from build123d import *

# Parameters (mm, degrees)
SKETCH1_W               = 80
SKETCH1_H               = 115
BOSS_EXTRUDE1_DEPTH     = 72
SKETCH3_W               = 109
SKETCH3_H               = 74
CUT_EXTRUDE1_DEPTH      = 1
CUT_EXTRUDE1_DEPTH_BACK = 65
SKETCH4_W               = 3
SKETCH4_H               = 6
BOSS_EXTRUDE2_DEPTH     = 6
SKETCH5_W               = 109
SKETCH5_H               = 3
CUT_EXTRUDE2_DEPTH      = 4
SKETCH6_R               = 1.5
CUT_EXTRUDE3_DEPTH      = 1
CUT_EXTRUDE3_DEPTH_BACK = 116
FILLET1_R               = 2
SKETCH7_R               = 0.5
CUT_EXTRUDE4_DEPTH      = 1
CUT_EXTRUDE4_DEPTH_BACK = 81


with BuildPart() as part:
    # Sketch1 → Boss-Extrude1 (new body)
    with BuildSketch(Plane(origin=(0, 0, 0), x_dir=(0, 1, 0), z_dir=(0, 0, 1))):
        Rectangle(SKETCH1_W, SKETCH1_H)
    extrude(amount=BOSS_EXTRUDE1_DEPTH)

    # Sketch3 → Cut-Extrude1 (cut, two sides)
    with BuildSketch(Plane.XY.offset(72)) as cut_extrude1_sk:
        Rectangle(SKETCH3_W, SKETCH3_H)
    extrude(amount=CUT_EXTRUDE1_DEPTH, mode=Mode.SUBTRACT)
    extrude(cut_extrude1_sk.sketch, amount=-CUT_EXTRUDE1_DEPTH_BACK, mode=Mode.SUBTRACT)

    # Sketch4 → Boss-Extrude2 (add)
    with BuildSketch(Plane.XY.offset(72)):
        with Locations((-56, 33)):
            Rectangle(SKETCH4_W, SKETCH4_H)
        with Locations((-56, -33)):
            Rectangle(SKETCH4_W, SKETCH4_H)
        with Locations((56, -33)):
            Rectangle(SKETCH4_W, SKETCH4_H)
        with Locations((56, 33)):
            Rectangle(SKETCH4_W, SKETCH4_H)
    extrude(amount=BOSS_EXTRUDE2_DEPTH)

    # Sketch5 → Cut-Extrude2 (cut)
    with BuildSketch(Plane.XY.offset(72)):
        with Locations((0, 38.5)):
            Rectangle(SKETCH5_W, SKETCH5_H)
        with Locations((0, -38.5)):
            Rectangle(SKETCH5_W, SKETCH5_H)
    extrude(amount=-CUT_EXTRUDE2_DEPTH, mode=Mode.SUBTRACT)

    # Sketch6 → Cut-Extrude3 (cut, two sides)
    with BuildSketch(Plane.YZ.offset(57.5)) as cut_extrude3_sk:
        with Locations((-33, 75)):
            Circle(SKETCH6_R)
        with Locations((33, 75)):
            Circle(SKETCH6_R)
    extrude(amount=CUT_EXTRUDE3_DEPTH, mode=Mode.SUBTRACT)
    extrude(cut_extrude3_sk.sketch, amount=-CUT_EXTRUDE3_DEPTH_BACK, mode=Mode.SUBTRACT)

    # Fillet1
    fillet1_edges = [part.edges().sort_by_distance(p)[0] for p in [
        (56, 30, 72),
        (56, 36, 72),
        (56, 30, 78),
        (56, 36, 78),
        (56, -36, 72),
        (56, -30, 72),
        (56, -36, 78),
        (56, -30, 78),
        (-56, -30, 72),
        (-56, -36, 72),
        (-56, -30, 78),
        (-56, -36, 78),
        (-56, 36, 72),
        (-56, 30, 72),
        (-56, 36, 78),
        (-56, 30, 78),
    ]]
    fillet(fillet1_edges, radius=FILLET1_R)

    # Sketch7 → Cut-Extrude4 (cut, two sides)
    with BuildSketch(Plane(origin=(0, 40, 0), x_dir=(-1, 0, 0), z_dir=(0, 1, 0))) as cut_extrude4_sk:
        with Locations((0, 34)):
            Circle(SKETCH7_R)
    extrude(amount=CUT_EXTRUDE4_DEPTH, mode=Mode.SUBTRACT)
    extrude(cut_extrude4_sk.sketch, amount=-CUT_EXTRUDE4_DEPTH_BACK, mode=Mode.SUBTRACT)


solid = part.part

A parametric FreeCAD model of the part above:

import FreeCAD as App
import Part
import Sketcher


def edges_at(feature, points):
    """Names of the edges that pass closest to the given points."""
    edges = feature.Shape.Edges
    near = lambda p: min(range(len(edges)), key=lambda i: edges[i].distToShape(Part.Vertex(*p))[0])
    return sorted({f"Edge{near(p) + 1}" for p in points})

doc = App.newDocument("Part")
body = doc.addObject("PartDesign::Body", "Body")

sketch1 = body.newObject("Sketcher::SketchObject", "Sketch")
sketch1.AttachmentSupport = (doc.getObject("XY_Plane"), [""])
sketch1.MapMode = "FlatFace"
sketch1.addGeometry(Part.LineSegment(App.Vector(-58, -40, 0), App.Vector(58, -40, 0)), False)
sketch1.addGeometry(Part.LineSegment(App.Vector(58, -40, 0), App.Vector(58, 40, 0)), False)
sketch1.addGeometry(Part.LineSegment(App.Vector(58, 40, 0), App.Vector(-58, 40, 0)), False)
sketch1.addGeometry(Part.LineSegment(App.Vector(-58, 40, 0), App.Vector(-58, -40, 0)), False)
sketch1.addConstraint(Sketcher.Constraint("Coincident", 0, 2, 1, 1))
sketch1.addConstraint(Sketcher.Constraint("Coincident", 1, 2, 2, 1))
sketch1.addConstraint(Sketcher.Constraint("Coincident", 2, 2, 3, 1))
sketch1.addConstraint(Sketcher.Constraint("Coincident", 3, 2, 0, 1))
sketch1.addConstraint(Sketcher.Constraint("Horizontal", 0))
sketch1.addConstraint(Sketcher.Constraint("Vertical", 1))
sketch1.addConstraint(Sketcher.Constraint("Horizontal", 2))
sketch1.addConstraint(Sketcher.Constraint("Vertical", 3))
sketch1.addConstraint(Sketcher.Constraint("Symmetric", 0, 2, 2, 2, -1, 1))
sketch1.addConstraint(Sketcher.Constraint("DistanceX", 0, 1, 0, 2, 115.0))
sketch1.addConstraint(Sketcher.Constraint("DistanceY", 1, 1, 1, 2, 80.0))
pad1 = body.newObject("PartDesign::Pad", "Pad")
pad1.Profile = sketch1
pad1.Length = 72

sketch2 = body.newObject("Sketcher::SketchObject", "Sketch001")
sketch2.AttachmentSupport = (doc.getObject("XY_Plane"), [""])
sketch2.MapMode = "FlatFace"
sketch2.AttachmentOffset = App.Placement(App.Vector(0, 0, 72), App.Rotation())
sketch2.addGeometry(Part.LineSegment(App.Vector(-54, 37, 0), App.Vector(-54, -37, 0)), False)
sketch2.addGeometry(Part.LineSegment(App.Vector(-54, -37, 0), App.Vector(54, -37, 0)), False)
sketch2.addGeometry(Part.LineSegment(App.Vector(54, -37, 0), App.Vector(54, 37, 0)), False)
sketch2.addGeometry(Part.LineSegment(App.Vector(54, 37, 0), App.Vector(-54, 37, 0)), False)
sketch2.addConstraint(Sketcher.Constraint("Coincident", 0, 2, 1, 1))
sketch2.addConstraint(Sketcher.Constraint("Coincident", 1, 2, 2, 1))
sketch2.addConstraint(Sketcher.Constraint("Coincident", 2, 2, 3, 1))
sketch2.addConstraint(Sketcher.Constraint("Coincident", 3, 2, 0, 1))
sketch2.addConstraint(Sketcher.Constraint("Vertical", 0))
sketch2.addConstraint(Sketcher.Constraint("Horizontal", 1))
sketch2.addConstraint(Sketcher.Constraint("Vertical", 2))
sketch2.addConstraint(Sketcher.Constraint("Horizontal", 3))
sketch2.addConstraint(Sketcher.Constraint("Symmetric", 0, 2, 2, 2, -1, 1))
sketch2.addConstraint(Sketcher.Constraint("DistanceX", 1, 1, 1, 2, 109.0))
sketch2.addConstraint(Sketcher.Constraint("DistanceY", 0, 2, 0, 1, 74.0))
pocket1 = body.newObject("PartDesign::Pocket", "Pocket")
pocket1.Profile = sketch2
pocket1.Type = "TwoLengths"
pocket1.Length = 1
pocket1.Length2 = 65
pocket1.Reversed = True

sketch3 = body.newObject("Sketcher::SketchObject", "Sketch002")
sketch3.AttachmentSupport = (doc.getObject("XY_Plane"), [""])
sketch3.MapMode = "FlatFace"
sketch3.AttachmentOffset = App.Placement(App.Vector(0, 0, 72), App.Rotation())
sketch3.addGeometry(Part.LineSegment(App.Vector(-57.5, 36, 0), App.Vector(-57.5, 30, 0)), False)
sketch3.addGeometry(Part.LineSegment(App.Vector(-57.5, 30, 0), App.Vector(-54.5, 30, 0)), False)
sketch3.addGeometry(Part.LineSegment(App.Vector(-54.5, 30, 0), App.Vector(-54.5, 36, 0)), False)
sketch3.addGeometry(Part.LineSegment(App.Vector(-54.5, 36, 0), App.Vector(-57.5, 36, 0)), False)
sketch3.addGeometry(Part.LineSegment(App.Vector(-57.5, -30, 0), App.Vector(-57.5, -36, 0)), False)
sketch3.addGeometry(Part.LineSegment(App.Vector(-57.5, -36, 0), App.Vector(-54.5, -36, 0)), False)
sketch3.addGeometry(Part.LineSegment(App.Vector(-54.5, -36, 0), App.Vector(-54.5, -30, 0)), False)
sketch3.addGeometry(Part.LineSegment(App.Vector(-54.5, -30, 0), App.Vector(-57.5, -30, 0)), False)
sketch3.addGeometry(Part.LineSegment(App.Vector(54.5, -30, 0), App.Vector(54.5, -36, 0)), False)
sketch3.addGeometry(Part.LineSegment(App.Vector(54.5, -36, 0), App.Vector(57.5, -36, 0)), False)
sketch3.addGeometry(Part.LineSegment(App.Vector(57.5, -36, 0), App.Vector(57.5, -30, 0)), False)
sketch3.addGeometry(Part.LineSegment(App.Vector(57.5, -30, 0), App.Vector(54.5, -30, 0)), False)
sketch3.addGeometry(Part.LineSegment(App.Vector(54.5, 36, 0), App.Vector(54.5, 30, 0)), False)
sketch3.addGeometry(Part.LineSegment(App.Vector(54.5, 30, 0), App.Vector(57.5, 30, 0)), False)
sketch3.addGeometry(Part.LineSegment(App.Vector(57.5, 30, 0), App.Vector(57.5, 36, 0)), False)
sketch3.addGeometry(Part.LineSegment(App.Vector(57.5, 36, 0), App.Vector(54.5, 36, 0)), False)
sketch3.addConstraint(Sketcher.Constraint("Coincident", 0, 2, 1, 1))
sketch3.addConstraint(Sketcher.Constraint("Coincident", 1, 2, 2, 1))
sketch3.addConstraint(Sketcher.Constraint("Coincident", 2, 2, 3, 1))
sketch3.addConstraint(Sketcher.Constraint("Coincident", 3, 2, 0, 1))
sketch3.addConstraint(Sketcher.Constraint("Coincident", 4, 2, 5, 1))
sketch3.addConstraint(Sketcher.Constraint("Coincident", 5, 2, 6, 1))
sketch3.addConstraint(Sketcher.Constraint("Coincident", 6, 2, 7, 1))
sketch3.addConstraint(Sketcher.Constraint("Coincident", 7, 2, 4, 1))
sketch3.addConstraint(Sketcher.Constraint("Coincident", 8, 2, 9, 1))
sketch3.addConstraint(Sketcher.Constraint("Coincident", 9, 2, 10, 1))
sketch3.addConstraint(Sketcher.Constraint("Coincident", 10, 2, 11, 1))
sketch3.addConstraint(Sketcher.Constraint("Coincident", 11, 2, 8, 1))
sketch3.addConstraint(Sketcher.Constraint("Coincident", 12, 2, 13, 1))
sketch3.addConstraint(Sketcher.Constraint("Coincident", 13, 2, 14, 1))
sketch3.addConstraint(Sketcher.Constraint("Coincident", 14, 2, 15, 1))
sketch3.addConstraint(Sketcher.Constraint("Coincident", 15, 2, 12, 1))
sketch3.addConstraint(Sketcher.Constraint("Vertical", 0))
sketch3.addConstraint(Sketcher.Constraint("Horizontal", 1))
sketch3.addConstraint(Sketcher.Constraint("Vertical", 2))
sketch3.addConstraint(Sketcher.Constraint("Horizontal", 3))
sketch3.addConstraint(Sketcher.Constraint("Vertical", 4))
sketch3.addConstraint(Sketcher.Constraint("Horizontal", 5))
sketch3.addConstraint(Sketcher.Constraint("Vertical", 6))
sketch3.addConstraint(Sketcher.Constraint("Horizontal", 7))
sketch3.addConstraint(Sketcher.Constraint("Vertical", 8))
sketch3.addConstraint(Sketcher.Constraint("Horizontal", 9))
sketch3.addConstraint(Sketcher.Constraint("Vertical", 10))
sketch3.addConstraint(Sketcher.Constraint("Horizontal", 11))
sketch3.addConstraint(Sketcher.Constraint("Vertical", 12))
sketch3.addConstraint(Sketcher.Constraint("Horizontal", 13))
sketch3.addConstraint(Sketcher.Constraint("Vertical", 14))
sketch3.addConstraint(Sketcher.Constraint("Horizontal", 15))
sketch3.addConstraint(Sketcher.Constraint("Symmetric", 2, 2, 8, 2, -1, 1))
sketch3.addConstraint(Sketcher.Constraint("Symmetric", 0, 2, 10, 2, -1, 1))
sketch3.addConstraint(Sketcher.Constraint("Symmetric", 6, 2, 12, 2, -1, 1))
sketch3.addConstraint(Sketcher.Constraint("Symmetric", 4, 2, 14, 2, -1, 1))
sketch3.addConstraint(Sketcher.Constraint("Symmetric", 5, 2, 8, 2, -2))
sketch3.addConstraint(Sketcher.Constraint("Symmetric", 7, 2, 10, 2, -2))
sketch3.addConstraint(Sketcher.Constraint("DistanceX", 1, 1, 1, 2, 3.0))
sketch3.addConstraint(Sketcher.Constraint("DistanceY", 0, 2, 0, 1, 6.0))
sketch3.addConstraint(Sketcher.Constraint("DistanceY", -1, 1, 0, 2, 30.0))
sketch3.addConstraint(Sketcher.Constraint("DistanceX", 5, 2, 8, 2, 109.0))
pad2 = body.newObject("PartDesign::Pad", "Pad001")
pad2.Profile = sketch3
pad2.Length = 6

sketch4 = body.newObject("Sketcher::SketchObject", "Sketch003")
sketch4.AttachmentSupport = (doc.getObject("XY_Plane"), [""])
sketch4.MapMode = "FlatFace"
sketch4.AttachmentOffset = App.Placement(App.Vector(0, 0, 72), App.Rotation())
sketch4.addGeometry(Part.LineSegment(App.Vector(-54.5, 40, 0), App.Vector(-54.5, 37, 0)), False)
sketch4.addGeometry(Part.LineSegment(App.Vector(-54.5, 37, 0), App.Vector(54.5, 37, 0)), False)
sketch4.addGeometry(Part.LineSegment(App.Vector(54.5, 37, 0), App.Vector(54.5, 40, 0)), False)
sketch4.addGeometry(Part.LineSegment(App.Vector(54.5, 40, 0), App.Vector(-54.5, 40, 0)), False)
sketch4.addGeometry(Part.LineSegment(App.Vector(-54.5, -37, 0), App.Vector(-54.5, -40, 0)), False)
sketch4.addGeometry(Part.LineSegment(App.Vector(-54.5, -40, 0), App.Vector(54.5, -40, 0)), False)
sketch4.addGeometry(Part.LineSegment(App.Vector(54.5, -40, 0), App.Vector(54.5, -37, 0)), False)
sketch4.addGeometry(Part.LineSegment(App.Vector(54.5, -37, 0), App.Vector(-54.5, -37, 0)), False)
sketch4.addConstraint(Sketcher.Constraint("Coincident", 0, 2, 1, 1))
sketch4.addConstraint(Sketcher.Constraint("Coincident", 1, 2, 2, 1))
sketch4.addConstraint(Sketcher.Constraint("Coincident", 2, 2, 3, 1))
sketch4.addConstraint(Sketcher.Constraint("Coincident", 3, 2, 0, 1))
sketch4.addConstraint(Sketcher.Constraint("Coincident", 4, 2, 5, 1))
sketch4.addConstraint(Sketcher.Constraint("Coincident", 5, 2, 6, 1))
sketch4.addConstraint(Sketcher.Constraint("Coincident", 6, 2, 7, 1))
sketch4.addConstraint(Sketcher.Constraint("Coincident", 7, 2, 4, 1))
sketch4.addConstraint(Sketcher.Constraint("Vertical", 0))
sketch4.addConstraint(Sketcher.Constraint("Horizontal", 1))
sketch4.addConstraint(Sketcher.Constraint("Vertical", 2))
sketch4.addConstraint(Sketcher.Constraint("Horizontal", 3))
sketch4.addConstraint(Sketcher.Constraint("Vertical", 4))
sketch4.addConstraint(Sketcher.Constraint("Horizontal", 5))
sketch4.addConstraint(Sketcher.Constraint("Vertical", 6))
sketch4.addConstraint(Sketcher.Constraint("Horizontal", 7))
sketch4.addConstraint(Sketcher.Constraint("Symmetric", 2, 2, 4, 2, -1, 1))
sketch4.addConstraint(Sketcher.Constraint("Symmetric", 0, 2, 6, 2, -1, 1))
sketch4.addConstraint(Sketcher.Constraint("Vertical", 3, 2, 4, 2))
sketch4.addConstraint(Sketcher.Constraint("DistanceX", 1, 1, 1, 2, 109.0))
sketch4.addConstraint(Sketcher.Constraint("DistanceY", 0, 2, 0, 1, 3.0))
sketch4.addConstraint(Sketcher.Constraint("DistanceY", -1, 1, 0, 2, 37.0))
pocket2 = body.newObject("PartDesign::Pocket", "Pocket001")
pocket2.Profile = sketch4
pocket2.Length = 4

sketch5 = body.newObject("Sketcher::SketchObject", "Sketch004")
sketch5.AttachmentSupport = (doc.getObject("YZ_Plane"), [""])
sketch5.MapMode = "FlatFace"
sketch5.AttachmentOffset = App.Placement(App.Vector(0, 0, 57.5), App.Rotation())
sketch5.addGeometry(Part.Circle(App.Vector(-33, 75, 0), App.Vector(0, 0, 1), 1.5), False)
sketch5.addGeometry(Part.Circle(App.Vector(33, 75, 0), App.Vector(0, 0, 1), 1.5), False)
sketch5.addConstraint(Sketcher.Constraint("Equal", 0, 1))
sketch5.addConstraint(Sketcher.Constraint("Symmetric", 0, 3, 1, 3, -2))
sketch5.addConstraint(Sketcher.Constraint("Diameter", 0, 3.0))
sketch5.addConstraint(Sketcher.Constraint("DistanceX", 0, 3, -1, 1, 33.0))
sketch5.addConstraint(Sketcher.Constraint("DistanceY", -1, 1, 0, 3, 75.0))
pocket3 = body.newObject("PartDesign::Pocket", "Pocket002")
pocket3.Profile = sketch5
pocket3.Type = "ThroughAll"
pocket3.Midplane = True
doc.recompute()

fillet = body.newObject("PartDesign::Fillet", "Fillet")
fillet.Base = (pocket3, edges_at(pocket3, [
    (56, 30, 72),
    (56, 36, 72),
    (56, 30, 78),
    (56, 36, 78),
    (56, -36, 72),
    (56, -30, 72),
    (56, -36, 78),
    (56, -30, 78),
    (-56, -30, 72),
    (-56, -36, 72),
    (-56, -30, 78),
    (-56, -36, 78),
    (-56, 36, 72),
    (-56, 30, 72),
    (-56, 36, 78),
    (-56, 30, 78),
]))
fillet.Radius = 2

sketch6 = body.newObject("Sketcher::SketchObject", "Sketch005")
sketch6.AttachmentSupport = (doc.getObject("XZ_Plane"), [""])
sketch6.MapMode = "FlatFace"
sketch6.AttachmentOffset = App.Placement(App.Vector(0, 0, -40), App.Rotation())
sketch6.addGeometry(Part.Circle(App.Vector(0, 34, 0), App.Vector(0, 0, 1), 0.5), False)
sketch6.addConstraint(Sketcher.Constraint("PointOnObject", 0, 3, -2))
sketch6.addConstraint(Sketcher.Constraint("Diameter", 0, 1.0))
sketch6.addConstraint(Sketcher.Constraint("DistanceY", -1, 1, 0, 3, 34.0))
pocket4 = body.newObject("PartDesign::Pocket", "Pocket003")
pocket4.Profile = sketch6
pocket4.Type = "ThroughAll"
pocket4.Midplane = True

doc.recompute()
